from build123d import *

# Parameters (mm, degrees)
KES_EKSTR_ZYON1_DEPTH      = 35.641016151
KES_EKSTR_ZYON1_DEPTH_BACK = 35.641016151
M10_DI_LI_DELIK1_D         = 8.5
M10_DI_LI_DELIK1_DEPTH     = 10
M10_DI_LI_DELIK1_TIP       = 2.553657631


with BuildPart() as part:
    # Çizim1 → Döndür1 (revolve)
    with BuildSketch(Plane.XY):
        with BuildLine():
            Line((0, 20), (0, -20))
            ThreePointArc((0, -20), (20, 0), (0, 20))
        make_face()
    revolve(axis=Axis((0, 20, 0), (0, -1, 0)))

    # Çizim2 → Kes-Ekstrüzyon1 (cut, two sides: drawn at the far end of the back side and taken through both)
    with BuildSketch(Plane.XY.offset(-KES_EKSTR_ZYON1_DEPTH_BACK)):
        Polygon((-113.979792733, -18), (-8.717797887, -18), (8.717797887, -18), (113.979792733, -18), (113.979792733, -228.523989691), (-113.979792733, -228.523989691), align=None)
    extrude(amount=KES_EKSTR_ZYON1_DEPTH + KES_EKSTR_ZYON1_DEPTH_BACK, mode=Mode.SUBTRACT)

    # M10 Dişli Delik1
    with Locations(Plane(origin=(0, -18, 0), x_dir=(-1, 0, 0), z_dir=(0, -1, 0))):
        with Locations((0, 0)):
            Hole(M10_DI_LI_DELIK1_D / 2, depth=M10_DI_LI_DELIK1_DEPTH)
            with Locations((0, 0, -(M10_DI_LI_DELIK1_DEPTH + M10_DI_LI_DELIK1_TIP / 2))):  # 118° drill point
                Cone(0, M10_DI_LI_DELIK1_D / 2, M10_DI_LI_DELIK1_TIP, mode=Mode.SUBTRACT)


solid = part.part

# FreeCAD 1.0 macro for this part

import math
import FreeCAD as App
import Part
import Sketcher
Q = App.Units.Quantity

doc = App.newDocument("Part")
body = doc.addObject("PartDesign::Body", "Body")

sketch1 = body.newObject("Sketcher::SketchObject", "Sketch")
sketch1.AttachmentSupport = (doc.getObject("XY_Plane"), [""])
sketch1.MapMode = "FlatFace"
sketch1.addGeometry([
    Part.LineSegment(App.Vector(0, 20, 0), App.Vector(0, -20, 0)),
    Part.ArcOfCircle(Part.Circle(App.Vector(0, 0, 0), App.Vector(0, 0, 1), 20), math.radians(-90), math.radians(90)),
], False)
sketch1.addConstraint([
    Sketcher.Constraint("Coincident", 0, 1, 1, 2),
    Sketcher.Constraint("Coincident", 1, 1, 0, 2),
    Sketcher.Constraint("Vertical", 0),
    Sketcher.Constraint("Coincident", 1, 3, -1, 1),
    Sketcher.Constraint("PointOnObject", 0, 1, -2),
    Sketcher.Constraint("Radius", 1, Q("20 mm")),
])
revolution = body.newObject("PartDesign::Revolution", "Revolution")
revolution.Profile = sketch1
revolution.ReferenceAxis = (sketch1, ["V_Axis"])
revolution.Angle = 360

sketch2 = body.newObject("Sketcher::SketchObject", "Sketch001")
sketch2.AttachmentSupport = (doc.getObject("XY_Plane"), [""])
sketch2.MapMode = "FlatFace"
sketch2.addGeometry([
    Part.LineSegment(App.Vector(114, -18, 0), App.Vector(-114, -18, 0)),
    Part.LineSegment(App.Vector(-114, -18, 0), App.Vector(-114, -229, 0)),
    Part.LineSegment(App.Vector(-114, -229, 0), App.Vector(114, -229, 0)),
    Part.LineSegment(App.Vector(114, -229, 0), App.Vector(114, -18, 0)),
], False)
sketch2.addConstraint([
    Sketcher.Constraint("Coincident", 0, 2, 1, 1),
    Sketcher.Constraint("Coincident", 1, 2, 2, 1),
    Sketcher.Constraint("Coincident", 2, 2, 3, 1),
    Sketcher.Constraint("Coincident", 3, 2, 0, 1),
    Sketcher.Constraint("Horizontal", 0),
    Sketcher.Constraint("Vertical", 1),
    Sketcher.Constraint("Horizontal", 2),
    Sketcher.Constraint("Vertical", 3),
    Sketcher.Constraint("DistanceY", 0, 2, -1, 1, Q("18 mm")),
    Sketcher.Constraint("DistanceY", 1, 2, 1, 1, Q("210.52399 mm")),
    Sketcher.Constraint("DistanceX", 0, 2, 0, 1, Q("227.959585 mm")),
    Sketcher.Constraint("DistanceX", 0, 2, -1, 1, Q("113.979793 mm")),
])
pocket1 = body.newObject("PartDesign::Pocket", "Pocket")
pocket1.Profile = sketch2
pocket1.Type = "ThroughAll"
pocket1.Midplane = True

sketch3 = body.newObject("Sketcher::SketchObject", "Sketch002")
sketch3.AttachmentSupport = (doc.getObject("XZ_Plane"), [""])
sketch3.MapMode = "FlatFace"
sketch3.AttachmentOffset = App.Placement(App.Vector(0, 0, 18), App.Rotation())
sketch3.addGeometry(Part.Circle(App.Vector(0, 0, 0), App.Vector(0, 0, 1), 4.2), False)
sketch3.addConstraint([
    Sketcher.Constraint("Coincident", 0, 3, -1, 1),
    Sketcher.Constraint("Diameter", 0, Q("8.5 mm")),
])
doc.recompute()
hole = body.newObject("PartDesign::Hole", "Hole")
hole.Profile = sketch3
hole.ThreadType = "None"
hole.Diameter = 8.5
hole.DepthType = "Dimension"
hole.Depth = 10
hole.DrillPoint = "Angled"
hole.DrillPointAngle = 118

doc.recompute()
